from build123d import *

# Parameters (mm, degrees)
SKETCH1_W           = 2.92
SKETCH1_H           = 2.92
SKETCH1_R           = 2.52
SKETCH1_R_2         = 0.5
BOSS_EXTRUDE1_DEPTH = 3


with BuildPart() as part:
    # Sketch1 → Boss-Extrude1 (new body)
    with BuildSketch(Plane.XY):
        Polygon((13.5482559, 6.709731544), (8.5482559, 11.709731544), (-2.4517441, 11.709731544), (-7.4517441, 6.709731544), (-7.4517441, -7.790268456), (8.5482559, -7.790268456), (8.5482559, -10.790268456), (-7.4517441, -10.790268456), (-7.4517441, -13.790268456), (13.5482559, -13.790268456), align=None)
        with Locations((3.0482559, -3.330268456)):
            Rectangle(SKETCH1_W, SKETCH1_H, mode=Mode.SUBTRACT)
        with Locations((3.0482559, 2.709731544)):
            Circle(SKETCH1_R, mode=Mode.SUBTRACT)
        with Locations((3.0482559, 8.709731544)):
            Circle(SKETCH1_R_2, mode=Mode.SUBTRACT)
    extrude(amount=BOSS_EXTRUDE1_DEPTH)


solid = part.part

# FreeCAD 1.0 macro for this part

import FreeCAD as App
import Part
import Sketcher

doc = App.newDocument("Part")
body = doc.addObject("PartDesign::Body", "Body")

# Sketch on XY plane
sketch1 = doc.addObject("Sketcher::SketchObject", "Sketch")
body.addObject(sketch1)
sketch1.AttachmentSupport = (doc.XY_Plane, [""])
sketch1.MapMode = "FlatFace"
sketch1.addGeometry([
    Part.LineSegment(App.Vector(13.548256, 6.709732, 0), App.Vector(8.548256, 11.709732, 0)),  # 0
    Part.LineSegment(App.Vector(8.548256, 11.709732, 0), App.Vector(-2.451744, 11.709732, 0)),  # 1
    Part.LineSegment(App.Vector(-2.451744, 11.709732, 0), App.Vector(-7.451744, 6.709732, 0)),  # 2
    Part.LineSegment(App.Vector(-7.451744, 6.709732, 0), App.Vector(-7.451744, -7.790268, 0)),  # 3
    Part.LineSegment(App.Vector(-7.451744, -7.790268, 0), App.Vector(8.548256, -7.790268, 0)),  # 4
    Part.LineSegment(App.Vector(8.548256, -7.790268, 0), App.Vector(8.548256, -10.790268, 0)),  # 5
    Part.LineSegment(App.Vector(8.548256, -10.790268, 0), App.Vector(-7.451744, -10.790268, 0)),  # 6
    Part.LineSegment(App.Vector(-7.451744, -10.790268, 0), App.Vector(-7.451744, -13.790268, 0)),  # 7
    Part.LineSegment(App.Vector(-7.451744, -13.790268, 0), App.Vector(13.548256, -13.790268, 0)),  # 8
    Part.LineSegment(App.Vector(13.548256, -13.790268, 0), App.Vector(13.548256, 6.709732, 0)),  # 9
    Part.LineSegment(App.Vector(4.508256, -4.790268, 0), App.Vector(1.588256, -4.790268, 0)),  # 10
    Part.LineSegment(App.Vector(1.588256, -4.790268, 0), App.Vector(1.588256, -1.870268, 0)),  # 11
    Part.LineSegment(App.Vector(1.588256, -1.870268, 0), App.Vector(4.508256, -1.870268, 0)),  # 12
    Part.LineSegment(App.Vector(4.508256, -1.870268, 0), App.Vector(4.508256, -4.790268, 0)),  # 13
    Part.Circle(App.Vector(3.048256, 2.709732, 0), App.Vector(0, 0, 1), 2.52),  # 14
    Part.Circle(App.Vector(3.048256, 8.709732, 0), App.Vector(0, 0, 1), 0.5),  # 15
], False)
sketch1.addConstraint([
    Sketcher.Constraint("Coincident", 0, 2, 1, 1),
    Sketcher.Constraint("Coincident", 1, 2, 2, 1),
    Sketcher.Constraint("Coincident", 2, 2, 3, 1),
    Sketcher.Constraint("Coincident", 3, 2, 4, 1),
    Sketcher.Constraint("Coincident", 4, 2, 5, 1),
    Sketcher.Constraint("Coincident", 5, 2, 6, 1),
    Sketcher.Constraint("Coincident", 6, 2, 7, 1),
    Sketcher.Constraint("Coincident", 7, 2, 8, 1),
    Sketcher.Constraint("Coincident", 8, 2, 9, 1),
    Sketcher.Constraint("Coincident", 9, 2, 0, 1),
    Sketcher.Constraint("Coincident", 10, 2, 11, 1),
    Sketcher.Constraint("Coincident", 11, 2, 12, 1),
    Sketcher.Constraint("Coincident", 12, 2, 13, 1),
    Sketcher.Constraint("Coincident", 13, 2, 10, 1),
    Sketcher.Constraint("Horizontal", 1),
    Sketcher.Constraint("Vertical", 3),
    Sketcher.Constraint("Horizontal", 4),
    Sketcher.Constraint("Vertical", 5),
    Sketcher.Constraint("Horizontal", 6),
    Sketcher.Constraint("Vertical", 7),
    Sketcher.Constraint("Horizontal", 8),
    Sketcher.Constraint("Vertical", 9),
    Sketcher.Constraint("Horizontal", 10),
    Sketcher.Constraint("Vertical", 11),
    Sketcher.Constraint("Horizontal", 12),
    Sketcher.Constraint("Vertical", 13),
    Sketcher.Constraint("Perpendicular", 0, 2),
    Sketcher.Constraint("Horizontal", 2, 2, 9, 2),
    Sketcher.Constraint("Vertical", 14, 3, 15, 3),
    Sketcher.Constraint("Vertical", 0, 2, 4, 2),
    Sketcher.Constraint("Vertical", 3, 2, 6, 2),
    Sketcher.Constraint("Equal", 5, 7),
    Sketcher.Constraint("Equal", 12, 11),
    Sketcher.Constraint("Equal", 0, 2),
    Sketcher.Constraint("Diameter", 15, 1.0),
    Sketcher.Constraint("Diameter", 14, 5.04),
    Sketcher.Constraint("DistanceX", 1, 2, 1, 1, 11.0),
    Sketcher.Constraint("DistanceX", 4, 1, 4, 2, 16.0),
    Sketcher.Constraint("DistanceY", 5, 2, 5, 1, 3.0),
    Sketcher.Constraint("DistanceY", 3, 2, 3, 1, 14.5),
    Sketcher.Constraint("DistanceY", 14, 3, 15, 3, 6.0),
    Sketcher.Constraint("DistanceY", 15, 3, 0, 2, 3.0),
    Sketcher.Constraint("DistanceY", 4, 2, 10, 2, 3.0),
    Sketcher.Constraint("DistanceX", 10, 2, 10, 1, 2.92),
    Sketcher.Constraint("DistanceX", 15, 3, 0, 2, 5.5),
    Sketcher.Constraint("DistanceX", 10, 2, 4, 2, 6.96),
    Sketcher.Constraint("DistanceY", -1, 1, 14, 3, 2.709732),
    Sketcher.Constraint("DistanceX", -1, 1, 14, 3, 3.048256),
])
pad1 = doc.addObject("PartDesign::Pad", "Pad")
body.addObject(pad1)
pad1.Profile = sketch1
pad1.Length = 3

doc.recompute()
